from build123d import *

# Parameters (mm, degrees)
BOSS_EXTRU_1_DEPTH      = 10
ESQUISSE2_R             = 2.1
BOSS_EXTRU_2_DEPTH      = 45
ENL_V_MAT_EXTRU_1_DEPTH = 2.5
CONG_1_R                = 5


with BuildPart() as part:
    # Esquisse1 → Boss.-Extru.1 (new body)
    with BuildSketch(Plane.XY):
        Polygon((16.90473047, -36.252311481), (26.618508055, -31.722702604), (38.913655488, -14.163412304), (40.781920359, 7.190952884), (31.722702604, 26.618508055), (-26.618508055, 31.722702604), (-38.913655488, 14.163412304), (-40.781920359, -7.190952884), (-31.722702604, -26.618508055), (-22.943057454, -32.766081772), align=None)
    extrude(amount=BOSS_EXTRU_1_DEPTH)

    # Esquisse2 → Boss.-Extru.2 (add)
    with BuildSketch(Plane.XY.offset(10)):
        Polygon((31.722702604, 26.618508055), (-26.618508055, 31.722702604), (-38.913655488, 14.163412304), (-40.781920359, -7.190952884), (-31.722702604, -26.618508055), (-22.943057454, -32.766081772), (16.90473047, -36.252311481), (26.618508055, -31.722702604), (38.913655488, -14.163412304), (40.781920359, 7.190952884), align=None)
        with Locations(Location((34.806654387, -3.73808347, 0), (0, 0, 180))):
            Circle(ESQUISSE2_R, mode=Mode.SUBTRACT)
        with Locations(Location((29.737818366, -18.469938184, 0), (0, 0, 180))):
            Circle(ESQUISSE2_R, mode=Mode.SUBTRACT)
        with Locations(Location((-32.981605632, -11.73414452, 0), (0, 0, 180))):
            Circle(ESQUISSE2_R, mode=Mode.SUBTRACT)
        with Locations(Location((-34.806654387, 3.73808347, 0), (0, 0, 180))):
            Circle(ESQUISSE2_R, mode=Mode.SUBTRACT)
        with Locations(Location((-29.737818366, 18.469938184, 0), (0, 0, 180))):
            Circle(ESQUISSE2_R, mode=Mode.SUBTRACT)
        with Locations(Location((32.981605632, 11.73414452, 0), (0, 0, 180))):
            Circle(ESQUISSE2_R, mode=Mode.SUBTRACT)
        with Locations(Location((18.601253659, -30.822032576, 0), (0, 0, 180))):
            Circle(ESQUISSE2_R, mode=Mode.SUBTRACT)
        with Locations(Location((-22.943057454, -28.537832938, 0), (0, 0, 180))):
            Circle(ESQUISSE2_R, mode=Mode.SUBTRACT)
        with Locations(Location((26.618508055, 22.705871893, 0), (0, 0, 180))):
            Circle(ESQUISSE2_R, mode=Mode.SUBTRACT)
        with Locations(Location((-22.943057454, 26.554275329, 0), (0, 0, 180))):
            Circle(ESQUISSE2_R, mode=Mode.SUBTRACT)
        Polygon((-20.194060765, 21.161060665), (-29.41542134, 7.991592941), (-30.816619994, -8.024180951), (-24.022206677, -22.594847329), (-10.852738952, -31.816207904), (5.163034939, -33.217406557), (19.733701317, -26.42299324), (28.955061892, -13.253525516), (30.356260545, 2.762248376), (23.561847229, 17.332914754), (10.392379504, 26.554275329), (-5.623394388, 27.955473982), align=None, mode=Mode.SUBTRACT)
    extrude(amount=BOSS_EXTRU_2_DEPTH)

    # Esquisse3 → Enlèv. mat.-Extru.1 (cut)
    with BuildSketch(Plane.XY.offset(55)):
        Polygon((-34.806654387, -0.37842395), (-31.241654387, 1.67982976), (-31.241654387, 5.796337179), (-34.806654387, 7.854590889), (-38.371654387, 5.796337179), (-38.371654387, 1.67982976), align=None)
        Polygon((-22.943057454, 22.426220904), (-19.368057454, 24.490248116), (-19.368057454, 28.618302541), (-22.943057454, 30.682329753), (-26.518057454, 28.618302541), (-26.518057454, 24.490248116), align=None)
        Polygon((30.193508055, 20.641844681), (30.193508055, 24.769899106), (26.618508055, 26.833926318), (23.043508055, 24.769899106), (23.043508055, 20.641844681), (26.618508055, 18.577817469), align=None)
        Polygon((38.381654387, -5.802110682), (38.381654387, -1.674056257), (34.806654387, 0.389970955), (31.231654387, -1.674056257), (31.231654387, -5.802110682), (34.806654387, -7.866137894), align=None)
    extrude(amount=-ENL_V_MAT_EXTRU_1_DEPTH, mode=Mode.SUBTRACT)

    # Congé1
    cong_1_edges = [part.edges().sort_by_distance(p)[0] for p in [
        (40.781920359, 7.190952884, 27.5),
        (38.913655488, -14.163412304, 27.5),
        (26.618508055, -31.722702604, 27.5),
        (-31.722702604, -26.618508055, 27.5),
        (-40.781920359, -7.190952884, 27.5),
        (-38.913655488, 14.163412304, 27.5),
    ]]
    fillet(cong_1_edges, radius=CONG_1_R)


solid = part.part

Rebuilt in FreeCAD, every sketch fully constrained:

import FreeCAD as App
import Part
import Sketcher
from FreeCAD import Vector
Q = App.Units.Quantity


def edges_at(feature, points):
    """Names of the edges that pass closest to the given points."""
    edges = feature.Shape.Edges
    near = lambda p: min(range(len(edges)), key=lambda i: edges[i].distToShape(Part.Vertex(*p))[0])
    return sorted({f"Edge{near(p) + 1}" for p in points})

doc = App.newDocument("Part")
body = doc.addObject("PartDesign::Body", "Body")

sketch1 = body.newObject("Sketcher::SketchObject", "Sketch")
sketch1.AttachmentSupport = (doc.getObject("XY_Plane"), [""])
sketch1.MapMode = "FlatFace"
sketch1.addGeometry(Part.LineSegment(Vector(17, -36, 0), Vector(27, -32, 0)), False)
sketch1.addGeometry(Part.LineSegment(Vector(27, -32, 0), Vector(39, -14, 0)), False)
sketch1.addGeometry(Part.LineSegment(Vector(39, -14, 0), Vector(41, 7, 0)), False)
sketch1.addGeometry(Part.LineSegment(Vector(41, 7, 0), Vector(32, 27, 0)), False)
sketch1.addGeometry(Part.LineSegment(Vector(32, 27, 0), Vector(-27, 32, 0)), False)
sketch1.addGeometry(Part.LineSegment(Vector(-27, 32, 0), Vector(-39, 14, 0)), False)
sketch1.addGeometry(Part.LineSegment(Vector(-39, 14, 0), Vector(-41, -7, 0)), False)
sketch1.addGeometry(Part.LineSegment(Vector(-41, -7, 0), Vector(-32, -27, 0)), False)
sketch1.addGeometry(Part.LineSegment(Vector(-32, -27, 0), Vector(-23, -33, 0)), False)
sketch1.addGeometry(Part.LineSegment(Vector(-23, -33, 0), Vector(17, -36, 0)), False)
sketch1.addConstraint(Sketcher.Constraint("Coincident", 0, 2, 1, 1))
sketch1.addConstraint(Sketcher.Constraint("Coincident", 1, 2, 2, 1))
sketch1.addConstraint(Sketcher.Constraint("Coincident", 2, 2, 3, 1))
sketch1.addConstraint(Sketcher.Constraint("Coincident", 3, 2, 4, 1))
sketch1.addConstraint(Sketcher.Constraint("Coincident", 4, 2, 5, 1))
sketch1.addConstraint(Sketcher.Constraint("Coincident", 5, 2, 6, 1))
sketch1.addConstraint(Sketcher.Constraint("Coincident", 6, 2, 7, 1))
sketch1.addConstraint(Sketcher.Constraint("Coincident", 7, 2, 8, 1))
sketch1.addConstraint(Sketcher.Constraint("Coincident", 8, 2, 9, 1))
sketch1.addConstraint(Sketcher.Constraint("Coincident", 9, 2, 0, 1))
sketch1.addConstraint(Sketcher.Constraint("Symmetric", 0, 2, 4, 2, -1, 1))
sketch1.addConstraint(Sketcher.Constraint("Symmetric", 1, 2, 5, 2, -1, 1))
sketch1.addConstraint(Sketcher.Constraint("Symmetric", 2, 2, 6, 2, -1, 1))
sketch1.addConstraint(Sketcher.Constraint("Symmetric", 3, 2, 7, 2, -1, 1))
sketch1.addConstraint(Sketcher.Constraint("Perpendicular", 0, 3))
sketch1.addConstraint(Sketcher.Constraint("Perpendicular", 2, 4))
sketch1.addConstraint(Sketcher.Constraint("Perpendicular", 5, 8))
sketch1.addConstraint(Sketcher.Constraint("Perpendicular", 6, 9))
sketch1.addConstraint(Sketcher.Constraint("Equal", 1, 2))
sketch1.addConstraint(Sketcher.Constraint("Equal", 2, 3))
sketch1.addConstraint(Sketcher.Constraint("Equal", 0, 8))
sketch1.addConstraint(Sketcher.Constraint("Angle", 0, Q("25 deg")))
sketch1.addConstraint(Sketcher.Constraint("Angle", 1, Q("55 deg")))
sketch1.addConstraint(Sketcher.Constraint("Distance", 9, Q("40 mm")))
sketch1.addConstraint(Sketcher.Constraint("DistanceX", 5, 2, 8, 2, Q("15.970598 mm")))
sketch1.addConstraint(Sketcher.Constraint("DistanceY", 9, 2, 1, 2, Q("22.088899 mm")))
pad1 = body.newObject("PartDesign::Pad", "Pad")
pad1.Profile = sketch1
pad1.Length = 10

sketch2 = body.newObject("Sketcher::SketchObject", "Sketch001")
sketch2.AttachmentSupport = (doc.getObject("XY_Plane"), [""])
sketch2.MapMode = "FlatFace"
sketch2.AttachmentOffset = App.Placement(Vector(0, 0, 10), App.Rotation())
sketch2.addGeometry(Part.LineSegment(Vector(31.722703, 26.618508, 0), Vector(-26.618508, 31.722703, 0)), False)
sketch2.addGeometry(Part.LineSegment(Vector(-26.618508, 31.722703, 0), Vector(-38.913655, 14.163412, 0)), False)
sketch2.addGeometry(Part.LineSegment(Vector(-38.913655, 14.163412, 0), Vector(-40.78192, -7.190953, 0)), False)
sketch2.addGeometry(Part.LineSegment(Vector(-40.78192, -7.190953, 0), Vector(-31.722703, -26.618508, 0)), False)
sketch2.addGeometry(Part.LineSegment(Vector(-31.722703, -26.618508, 0), Vector(-22.943057, -32.766082, 0)), False)
sketch2.addGeometry(Part.LineSegment(Vector(-22.943057, -32.766082, 0), Vector(16.90473, -36.252311, 0)), False)
sketch2.addGeometry(Part.LineSegment(Vector(16.90473, -36.252311, 0), Vector(26.618508, -31.722703, 0)), False)
sketch2.addGeometry(Part.LineSegment(Vector(26.618508, -31.722703, 0), Vector(38.913655, -14.163412, 0)), False)
sketch2.addGeometry(Part.LineSegment(Vector(38.913655, -14.163412, 0), Vector(40.78192, 7.190953, 0)), False)
sketch2.addGeometry(Part.LineSegment(Vector(40.78192, 7.190953, 0), Vector(31.722703, 26.618508, 0)), False)
sketch2.addGeometry(Part.Circle(Vector(-22.943057, -28.537833, 0), Vector(0, 0, 1), 2.1), False)
sketch2.addGeometry(Part.Circle(Vector(-32.981606, -11.734145, 0), Vector(0, 0, 1), 2.1), False)
sketch2.addGeometry(Part.LineSegment(Vector(-29.415421, 7.991593, 0), Vector(-20.194061, 21.161061, 0)), False)
sketch2.addGeometry(Part.LineSegment(Vector(-20.194061, 21.161061, 0), Vector(-5.623394, 27.955474, 0)), False)
sketch2.addGeometry(Part.LineSegment(Vector(-5.623394, 27.955474, 0), Vector(10.39238, 26.554275, 0)), False)
sketch2.addGeometry(Part.LineSegment(Vector(10.39238, 26.554275, 0), Vector(23.561847, 17.332915, 0)), False)
sketch2.addGeometry(Part.LineSegment(Vector(23.561847, 17.332915, 0), Vector(30.356261, 2.762248, 0)), False)
sketch2.addGeometry(Part.LineSegment(Vector(30.356261, 2.762248, 0), Vector(28.955062, -13.253526, 0)), False)
sketch2.addGeometry(Part.LineSegment(Vector(28.955062, -13.253526, 0), Vector(19.733701, -26.422993, 0)), False)
sketch2.addGeometry(Part.LineSegment(Vector(19.733701, -26.422993, 0), Vector(5.163035, -33.217407, 0)), False)
sketch2.addGeometry(Part.LineSegment(Vector(5.163035, -33.217407, 0), Vector(-10.852739, -31.816208, 0)), False)
sketch2.addGeometry(Part.LineSegment(Vector(-10.852739, -31.816208, 0), Vector(-24.022207, -22.594847, 0)), False)
sketch2.addGeometry(Part.LineSegment(Vector(-24.022207, -22.594847, 0), Vector(-30.81662, -8.024181, 0)), False)
sketch2.addGeometry(Part.LineSegment(Vector(-30.81662, -8.024181, 0), Vector(-29.415421, 7.991593, 0)), False)
sketch2.addGeometry(Part.Circle(Vector(18.601254, -30.822033, 0), Vector(0, 0, 1), 2.1), False)
sketch2.addGeometry(Part.Circle(Vector(29.737818, -18.469938, 0), Vector(0, 0, 1), 2.1), False)
sketch2.addGeometry(Part.Circle(Vector(34.806654, -3.738083, 0), Vector(0, 0, 1), 2.1), False)
sketch2.addGeometry(Part.Circle(Vector(-34.806654, 3.738083, 0), Vector(0, 0, 1), 2.1), False)
sketch2.addGeometry(Part.Circle(Vector(-29.737818, 18.469938, 0), Vector(0, 0, 1), 2.1), False)
sketch2.addGeometry(Part.Circle(Vector(-22.943057, 26.554275, 0), Vector(0, 0, 1), 2.1), False)
sketch2.addGeometry(Part.Circle(Vector(32.981606, 11.734145, 0), Vector(0, 0, 1), 2.1), False)
sketch2.addGeometry(Part.Circle(Vector(26.618508, 22.705872, 0), Vector(0, 0, 1), 2.1), False)
sketch2.addConstraint(Sketcher.Constraint("Coincident", 0, 2, 1, 1))
sketch2.addConstraint(Sketcher.Constraint("Coincident", 1, 2, 2, 1))
sketch2.addConstraint(Sketcher.Constraint("Coincident", 2, 2, 3, 1))
sketch2.addConstraint(Sketcher.Constraint("Coincident", 3, 2, 4, 1))
sketch2.addConstraint(Sketcher.Constraint("Coincident", 4, 2, 5, 1))
sketch2.addConstraint(Sketcher.Constraint("Coincident", 5, 2, 6, 1))
sketch2.addConstraint(Sketcher.Constraint("Coincident", 6, 2, 7, 1))
sketch2.addConstraint(Sketcher.Constraint("Coincident", 7, 2, 8, 1))
sketch2.addConstraint(Sketcher.Constraint("Coincident", 8, 2, 9, 1))
sketch2.addConstraint(Sketcher.Constraint("Coincident", 9, 2, 0, 1))
sketch2.addConstraint(Sketcher.Constraint("Coincident", 12, 2, 13, 1))
sketch2.addConstraint(Sketcher.Constraint("Coincident", 13, 2, 14, 1))
sketch2.addConstraint(Sketcher.Constraint("Coincident", 14, 2, 15, 1))
sketch2.addConstraint(Sketcher.Constraint("Coincident", 15, 2, 16, 1))
sketch2.addConstraint(Sketcher.Constraint("Coincident", 16, 2, 17, 1))
sketch2.addConstraint(Sketcher.Constraint("Coincident", 17, 2, 18, 1))
sketch2.addConstraint(Sketcher.Constraint("Coincident", 18, 2, 19, 1))
sketch2.addConstraint(Sketcher.Constraint("Coincident", 19, 2, 20, 1))
sketch2.addConstraint(Sketcher.Constraint("Coincident", 20, 2, 21, 1))
sketch2.addConstraint(Sketcher.Constraint("Coincident", 21, 2, 22, 1))
sketch2.addConstraint(Sketcher.Constraint("Coincident", 22, 2, 23, 1))
sketch2.addConstraint(Sketcher.Constraint("Coincident", 23, 2, 12, 1))
sketch2.addConstraint(Sketcher.Constraint("Diameter", 10, Q("4.2 mm")))
sketch2.addConstraint(Sketcher.Constraint("Diameter", 11, Q("4.2 mm")))
sketch2.addConstraint(Sketcher.Constraint("Diameter", 24, Q("4.2 mm")))
sketch2.addConstraint(Sketcher.Constraint("Diameter", 25, Q("4.2 mm")))
sketch2.addConstraint(Sketcher.Constraint("Diameter", 26, Q("4.2 mm")))
sketch2.addConstraint(Sketcher.Constraint("Diameter", 27, Q("4.2 mm")))
sketch2.addConstraint(Sketcher.Constraint("Diameter", 28, Q("4.2 mm")))
sketch2.addConstraint(Sketcher.Constraint("Diameter", 29, Q("4.2 mm")))
sketch2.addConstraint(Sketcher.Constraint("Diameter", 30, Q("4.2 mm")))
sketch2.addConstraint(Sketcher.Constraint("Diameter", 31, Q("4.2 mm")))
sketch2.addConstraint(Sketcher.Constraint("Distance", 5, Q("40 mm")))
sketch2.addConstraint(Sketcher.Constraint("DistanceX", 1, 2, 27, 3, Q("4.107001 mm")))
sketch2.addConstraint(Sketcher.Constraint("DistanceX", 26, 3, 7, 2, Q("4.107001 mm")))
sketch2.addConstraint(Sketcher.Constraint("DistanceX", -1, 1, 18, 2, Q("19.733701 mm")))
sketch2.addConstraint(Sketcher.Constraint("DistanceY", 24, 3, 10, 3, Q("2.2842 mm")))
sketch2.addConstraint(Sketcher.Constraint("DistanceX", 24, 3, 26, 3, Q("16.205401 mm")))
sketch2.addConstraint(Sketcher.Constraint("DistanceX", 1, 2, 29, 3, Q("15.970598 mm")))
sketch2.addConstraint(Sketcher.Constraint("DistanceX", 2, 2, 28, 3, Q("11.044102 mm")))
sketch2.addConstraint(Sketcher.Constraint("DistanceX", 25, 3, 8, 2, Q("11.044102 mm")))
sketch2.addConstraint(Sketcher.Constraint("DistanceY", 29, 3, 13, 2, Q("1.401199 mm")))
sketch2.addConstraint(Sketcher.Constraint("DistanceY", 14, 2, 13, 2, Q("1.401199 mm")))
sketch2.addConstraint(Sketcher.Constraint("DistanceX", 17, 2, 16, 2, Q("1.401199 mm")))
sketch2.addConstraint(Sketcher.Constraint("DistanceY", 19, 2, 20, 2, Q("1.401199 mm")))
sketch2.addConstraint(Sketcher.Constraint("DistanceY", 20, 2, 3, 2, Q("5.1977 mm")))
sketch2.addConstraint(Sketcher.Constraint("DistanceX", 11, 3, 21, 2, Q("8.959399 mm")))
sketch2.addConstraint(Sketcher.Constraint("DistanceX", 2, 2, 22, 2, Q("9.9653 mm")))
sketch2.addConstraint(Sketcher.Constraint("DistanceX", 22, 2, 23, 2, Q("1.401199 mm")))
sketch2.addConstraint(Sketcher.Constraint("Distance", 12, Q("16.076952 mm")))
sketch2.addConstraint(Sketcher.Constraint("Distance", 13, Q("16.076952 mm")))
sketch2.addConstraint(Sketcher.Constraint("Distance", 14, Q("16.076952 mm")))
sketch2.addConstraint(Sketcher.Constraint("Distance", 15, Q("16.076952 mm")))
sketch2.addConstraint(Sketcher.Constraint("Distance", 16, Q("16.076952 mm")))
sketch2.addConstraint(Sketcher.Constraint("Distance", 17, Q("16.076952 mm")))
sketch2.addConstraint(Sketcher.Constraint("Distance", 18, Q("16.076952 mm")))
sketch2.addConstraint(Sketcher.Constraint("Distance", 19, Q("16.076952 mm")))
sketch2.addConstraint(Sketcher.Constraint("Distance", 20, Q("16.076952 mm")))
sketch2.addConstraint(Sketcher.Constraint("Distance", 21, Q("16.076952 mm")))
sketch2.addConstraint(Sketcher.Constraint("Distance", 22, Q("16.076952 mm")))
sketch2.addConstraint(Sketcher.Constraint("Distance", 23, Q("16.076952 mm")))
sketch2.addConstraint(Sketcher.Constraint("DistanceX", -1, 1, 25, 3, Q("29.737818 mm")))
sketch2.addConstraint(Sketcher.Constraint("DistanceY", 25, 3, -1, 1, Q("18.469938 mm")))
sketch2.addConstraint(Sketcher.Constraint("DistanceX", 28, 3, -1, 1, Q("29.737818 mm")))
sketch2.addConstraint(Sketcher.Constraint("DistanceY", -1, 1, 28, 3, Q("18.469938 mm")))
sketch2.addConstraint(Sketcher.Constraint("DistanceX", -1, 1, 31, 3, Q("26.618508 mm")))
sketch2.addConstraint(Sketcher.Constraint("DistanceY", -1, 1, 31, 3, Q("22.705872 mm")))
sketch2.addConstraint(Sketcher.Constraint("DistanceX", 0, 2, -1, 1, Q("26.618508 mm")))
sketch2.addConstraint(Sketcher.Constraint("DistanceY", 3, 2, -1, 1, Q("26.618508 mm")))
sketch2.addConstraint(Sketcher.Constraint("DistanceY", 4, 2, -1, 1, Q("32.766082 mm")))
sketch2.addConstraint(Sketcher.Constraint("DistanceX", -1, 1, 5, 2, Q("16.90473 mm")))
sketch2.addConstraint(Sketcher.Constraint("DistanceY", 5, 2, -1, 1, Q("36.252311 mm")))
sketch2.addConstraint(Sketcher.Constraint("DistanceX", -1, 1, 6, 2, Q("26.618508 mm")))
sketch2.addConstraint(Sketcher.Constraint("DistanceY", -1, 1, 9, 2, Q("26.618508 mm")))
sketch2.addConstraint(Sketcher.Constraint("DistanceX", 12, 2, -1, 1, Q("20.194061 mm")))
sketch2.addConstraint(Sketcher.Constraint("DistanceY", -1, 1, 12, 2, Q("21.161061 mm")))
sketch2.addConstraint(Sketcher.Constraint("DistanceX", -1, 1, 14, 2, Q("10.39238 mm")))
sketch2.addConstraint(Sketcher.Constraint("DistanceX", -1, 1, 16, 2, Q("30.356261 mm")))
sketch2.addConstraint(Sketcher.Constraint("DistanceY", -1, 1, 16, 2, Q("2.762248 mm")))
sketch2.addConstraint(Sketcher.Constraint("DistanceX", 11, 3, 10, 3, Q("10.038548 mm")))
sketch2.addConstraint(Sketcher.Constraint("DistanceY", 10, 3, 11, 3, Q("16.803688 mm")))
sketch2.addConstraint(Sketcher.Constraint("DistanceX", 10, 3, 24, 3, Q("41.544311 mm")))
sketch2.addConstraint(Sketcher.Constraint("DistanceY", 24, 3, 26, 3, Q("27.083949 mm")))
sketch2.addConstraint(Sketcher.Constraint("DistanceX", 27, 3, 11, 3, Q("1.825049 mm")))
sketch2.addConstraint(Sketcher.Constraint("DistanceY", 25, 3, 27, 3, Q("22.208022 mm")))
sketch2.addConstraint(Sketcher.Constraint("DistanceY", 10, 3, 28, 3, Q("47.007771 mm")))
sketch2.addConstraint(Sketcher.Constraint("DistanceX", 30, 3, 26, 3, Q("1.825049 mm")))
sketch2.addConstraint(Sketcher.Constraint("DistanceY", 30, 3, 29, 3, Q("14.820131 mm")))
sketch2.addConstraint(Sketcher.Constraint("DistanceY", 27, 3, 0, 2, Q("27.984619 mm")))
sketch2.addConstraint(Sketcher.Constraint("DistanceY", 27, 3, 1, 2, Q("10.425329 mm")))
sketch2.addConstraint(Sketcher.Constraint("DistanceY", 11, 3, 2, 2, Q("4.543192 mm")))
sketch2.addConstraint(Sketcher.Constraint("DistanceX", 27, 3, 3, 2, Q("3.083952 mm")))
sketch2.addConstraint(Sketcher.Constraint("DistanceY", 6, 2, 24, 3, Q("0.90067 mm")))
sketch2.addConstraint(Sketcher.Constraint("DistanceY", 7, 2, 26, 3, Q("10.425329 mm")))
sketch2.addConstraint(Sketcher.Constraint("DistanceY", 8, 2, 30, 3, Q("4.543192 mm")))
sketch2.addConstraint(Sketcher.Constraint("DistanceX", 9, 2, 26, 3, Q("3.083952 mm")))
pad2 = body.newObject("PartDesign::Pad", "Pad001")
pad2.Profile = sketch2
pad2.Length = 45

sketch3 = body.newObject("Sketcher::SketchObject", "Sketch002")
sketch3.AttachmentSupport = (doc.getObject("XY_Plane"), [""])
sketch3.MapMode = "FlatFace"
sketch3.AttachmentOffset = App.Placement(Vector(0, 0, 55), App.Rotation())
sketch3.addGeometry(Part.LineSegment(Vector(-34.8, -0.4, 0), Vector(-31.2, 1.7, 0)), False)
sketch3.addGeometry(Part.LineSegment(Vector(-31.2, 1.7, 0), Vector(-31.2, 5.8, 0)), False)
sketch3.addGeometry(Part.LineSegment(Vector(-31.2, 5.8, 0), Vector(-34.8, 7.9, 0)), False)
sketch3.addGeometry(Part.LineSegment(Vector(-34.8, 7.9, 0), Vector(-38.4, 5.8, 0)), False)
sketch3.addGeometry(Part.LineSegment(Vector(-38.4, 5.8, 0), Vector(-38.4, 1.7, 0)), False)
sketch3.addGeometry(Part.LineSegment(Vector(-38.4, 1.7, 0), Vector(-34.8, -0.4, 0)), False)
sketch3.addGeometry(Part.LineSegment(Vector(-22.9, 22.4, 0), Vector(-19.4, 24.5, 0)), False)
sketch3.addGeometry(Part.LineSegment(Vector(-19.4, 24.5, 0), Vector(-19.4, 28.6, 0)), False)
sketch3.addGeometry(Part.LineSegment(Vector(-19.4, 28.6, 0), Vector(-22.9, 30.7, 0)), False)
sketch3.addGeometry(Part.LineSegment(Vector(-22.9, 30.7, 0), Vector(-26.5, 28.6, 0)), False)
sketch3.addGeometry(Part.LineSegment(Vector(-26.5, 28.6, 0), Vector(-26.5, 24.5, 0)), False)
sketch3.addGeometry(Part.LineSegment(Vector(-26.5, 24.5, 0), Vector(-22.9, 22.4, 0)), False)
sketch3.addGeometry(Part.LineSegment(Vector(30.2, 20.6, 0), Vector(30.2, 24.8, 0)), False)
sketch3.addGeometry(Part.LineSegment(Vector(30.2, 24.8, 0), Vector(26.6, 26.8, 0)), False)
sketch3.addGeometry(Part.LineSegment(Vector(26.6, 26.8, 0), Vector(23, 24.8, 0)), False)
sketch3.addGeometry(Part.LineSegment(Vector(23, 24.8, 0), Vector(23, 20.6, 0)), False)
sketch3.addGeometry(Part.LineSegment(Vector(23, 20.6, 0), Vector(26.6, 18.6, 0)), False)
sketch3.addGeometry(Part.LineSegment(Vector(26.6, 18.6, 0), Vector(30.2, 20.6, 0)), False)
sketch3.addGeometry(Part.LineSegment(Vector(38.4, -5.8, 0), Vector(38.4, -1.7, 0)), False)
sketch3.addGeometry(Part.LineSegment(Vector(38.4, -1.7, 0), Vector(34.8, 0.4, 0)), False)
sketch3.addGeometry(Part.LineSegment(Vector(34.8, 0.4, 0), Vector(31.2, -1.7, 0)), False)
sketch3.addGeometry(Part.LineSegment(Vector(31.2, -1.7, 0), Vector(31.2, -5.8, 0)), False)
sketch3.addGeometry(Part.LineSegment(Vector(31.2, -5.8, 0), Vector(34.8, -7.9, 0)), False)
sketch3.addGeometry(Part.LineSegment(Vector(34.8, -7.9, 0), Vector(38.4, -5.8, 0)), False)
sketch3.addConstraint(Sketcher.Constraint("Coincident", 0, 2, 1, 1))
sketch3.addConstraint(Sketcher.Constraint("Coincident", 1, 2, 2, 1))
sketch3.addConstraint(Sketcher.Constraint("Coincident", 2, 2, 3, 1))
sketch3.addConstraint(Sketcher.Constraint("Coincident", 3, 2, 4, 1))
sketch3.addConstraint(Sketcher.Constraint("Coincident", 4, 2, 5, 1))
sketch3.addConstraint(Sketcher.Constraint("Coincident", 5, 2, 0, 1))
sketch3.addConstraint(Sketcher.Constraint("Coincident", 6, 2, 7, 1))
sketch3.addConstraint(Sketcher.Constraint("Coincident", 7, 2, 8, 1))
sketch3.addConstraint(Sketcher.Constraint("Coincident", 8, 2, 9, 1))
sketch3.addConstraint(Sketcher.Constraint("Coincident", 9, 2, 10, 1))
sketch3.addConstraint(Sketcher.Constraint("Coincident", 10, 2, 11, 1))
sketch3.addConstraint(Sketcher.Constraint("Coincident", 11, 2, 6, 1))
sketch3.addConstraint(Sketcher.Constraint("Coincident", 12, 2, 13, 1))
sketch3.addConstraint(Sketcher.Constraint("Coincident", 13, 2, 14, 1))
sketch3.addConstraint(Sketcher.Constraint("Coincident", 14, 2, 15, 1))
sketch3.addConstraint(Sketcher.Constraint("Coincident", 15, 2, 16, 1))
sketch3.addConstraint(Sketcher.Constraint("Coincident", 16, 2, 17, 1))
sketch3.addConstraint(Sketcher.Constraint("Coincident", 17, 2, 12, 1))
sketch3.addConstraint(Sketcher.Constraint("Coincident", 18, 2, 19, 1))
sketch3.addConstraint(Sketcher.Constraint("Coincident", 19, 2, 20, 1))
sketch3.addConstraint(Sketcher.Constraint("Coincident", 20, 2, 21, 1))
sketch3.addConstraint(Sketcher.Constraint("Coincident", 21, 2, 22, 1))
sketch3.addConstraint(Sketcher.Constraint("Coincident", 22, 2, 23, 1))
sketch3.addConstraint(Sketcher.Constraint("Coincident", 23, 2, 18, 1))
sketch3.addConstraint(Sketcher.Constraint("Vertical", 1))
sketch3.addConstraint(Sketcher.Constraint("Vertical", 4))
sketch3.addConstraint(Sketcher.Constraint("Vertical", 7))
sketch3.addConstraint(Sketcher.Constraint("Vertical", 10))
sketch3.addConstraint(Sketcher.Constraint("Vertical", 12))
sketch3.addConstraint(Sketcher.Constraint("Vertical", 15))
sketch3.addConstraint(Sketcher.Constraint("Vertical", 18))
sketch3.addConstraint(Sketcher.Constraint("Vertical", 21))
sketch3.addConstraint(Sketcher.Constraint("Parallel", 0, 3))
sketch3.addConstraint(Sketcher.Constraint("Parallel", 2, 5))
sketch3.addConstraint(Sketcher.Constraint("Parallel", 3, 6))
sketch3.addConstraint(Sketcher.Constraint("Parallel", 5, 8))
sketch3.addConstraint(Sketcher.Constraint("Parallel", 6, 9))
sketch3.addConstraint(Sketcher.Constraint("Parallel", 8, 11))
sketch3.addConstraint(Sketcher.Constraint("Parallel", 11, 13))
sketch3.addConstraint(Sketcher.Constraint("Parallel", 9, 14))
sketch3.addConstraint(Sketcher.Constraint("Parallel", 13, 16))
sketch3.addConstraint(Sketcher.Constraint("Parallel", 14, 17))
sketch3.addConstraint(Sketcher.Constraint("Parallel", 16, 19))
sketch3.addConstraint(Sketcher.Constraint("Parallel", 17, 20))
sketch3.addConstraint(Sketcher.Constraint("Parallel", 19, 22))
sketch3.addConstraint(Sketcher.Constraint("Parallel", 20, 23))
sketch3.addConstraint(Sketcher.Constraint("Horizontal", 1, 2, 3, 2))
sketch3.addConstraint(Sketcher.Constraint("Horizontal", 0, 2, 4, 2))
sketch3.addConstraint(Sketcher.Constraint("Horizontal", 7, 2, 9, 2))
sketch3.addConstraint(Sketcher.Constraint("Horizontal", 6, 2, 10, 2))
sketch3.addConstraint(Sketcher.Constraint("Horizontal", 12, 2, 14, 2))
sketch3.addConstraint(Sketcher.Constraint("Horizontal", 15, 2, 17, 2))
sketch3.addConstraint(Sketcher.Constraint("Horizontal", 18, 2, 20, 2))
sketch3.addConstraint(Sketcher.Constraint("Horizontal", 21, 2, 23, 2))
sketch3.addConstraint(Sketcher.Constraint("Vertical", 2, 2, 5, 2))
sketch3.addConstraint(Sketcher.Constraint("Equal", 10, 12))
sketch3.addConstraint(Sketcher.Constraint("Equal", 15, 18))
sketch3.addConstraint(Sketcher.Constraint("Equal", 11, 13))
sketch3.addConstraint(Sketcher.Constraint("Equal", 17, 19))
sketch3.addConstraint(Sketcher.Constraint("Angle", 0, Q("30 deg")))
sketch3.addConstraint(Sketcher.Constraint("DistanceX", 3, 2, 1, 2, Q("7.13 mm")))
sketch3.addConstraint(Sketcher.Constraint("DistanceX", 9, 2, 7, 2, Q("7.15 mm")))
sketch3.addConstraint(Sketcher.Constraint("DistanceY", -1, 1, 12, 2, Q("24.769899 mm")))
sketch3.addConstraint(Sketcher.Constraint("DistanceY", 18, 2, 17, 2, Q("22.315901 mm")))
sketch3.addConstraint(Sketcher.Constraint("DistanceY", 1, 1, 1, 2, Q("4.116507 mm")))
sketch3.addConstraint(Sketcher.Constraint("DistanceY", 7, 1, 7, 2, Q("4.128054 mm")))
sketch3.addConstraint(Sketcher.Constraint("DistanceY", -1, 1, 0, 2, Q("1.67983 mm")))
sketch3.addConstraint(Sketcher.Constraint("DistanceY", -1, 1, 6, 2, Q("24.490248 mm")))
sketch3.addConstraint(Sketcher.Constraint("DistanceX", -1, 1, 12, 2, Q("30.193508 mm")))
sketch3.addConstraint(Sketcher.Constraint("DistanceX", 0, 2, -1, 1, Q("31.241654 mm")))
sketch3.addConstraint(Sketcher.Constraint("DistanceX", 6, 2, -1, 1, Q("19.368057 mm")))
sketch3.addConstraint(Sketcher.Constraint("DistanceX", -1, 1, 18, 2, Q("38.381654 mm")))
pocket1 = body.newObject("PartDesign::Pocket", "Pocket")
pocket1.Profile = sketch3
pocket1.Length = 2.5
doc.recompute()

fillet = body.newObject("PartDesign::Fillet", "Fillet")
fillet.Base = (pocket1, edges_at(pocket1, [
    (40.782, 7.191, 27.5),
    (38.914, -14.163, 27.5),
    (26.619, -31.723, 27.5),
    (-31.723, -26.619, 27.5),
    (-40.782, -7.191, 27.5),
    (-38.914, 14.163, 27.5),
]))
fillet.Radius = 5

doc.recompute()
